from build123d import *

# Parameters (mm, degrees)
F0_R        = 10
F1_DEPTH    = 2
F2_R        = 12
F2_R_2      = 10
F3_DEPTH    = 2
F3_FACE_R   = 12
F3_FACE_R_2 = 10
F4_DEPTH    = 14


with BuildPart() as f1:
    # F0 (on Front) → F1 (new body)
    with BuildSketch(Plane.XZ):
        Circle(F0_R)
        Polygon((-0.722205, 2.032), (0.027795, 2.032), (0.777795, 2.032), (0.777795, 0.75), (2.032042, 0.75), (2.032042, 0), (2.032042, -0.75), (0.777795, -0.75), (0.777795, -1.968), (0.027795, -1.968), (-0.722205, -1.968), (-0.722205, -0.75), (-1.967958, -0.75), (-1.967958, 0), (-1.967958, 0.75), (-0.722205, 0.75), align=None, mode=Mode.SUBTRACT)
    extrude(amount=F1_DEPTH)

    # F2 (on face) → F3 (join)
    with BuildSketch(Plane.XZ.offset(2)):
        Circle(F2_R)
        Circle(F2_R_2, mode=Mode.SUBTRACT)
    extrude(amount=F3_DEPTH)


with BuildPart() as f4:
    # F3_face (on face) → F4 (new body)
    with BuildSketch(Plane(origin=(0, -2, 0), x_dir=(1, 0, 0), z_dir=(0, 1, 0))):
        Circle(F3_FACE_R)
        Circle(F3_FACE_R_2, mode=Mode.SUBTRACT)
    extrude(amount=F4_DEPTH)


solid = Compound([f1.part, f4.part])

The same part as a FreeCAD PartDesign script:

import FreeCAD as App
import Part
import Sketcher
from FreeCAD import Vector
Q = App.Units.Quantity


def add_polygon(sketch, points):
    """Adds a closed chain of lines whose ends are joined by coincident constraints."""
    first, n = sketch.GeometryCount, len(points)
    for a, b in zip(points, points[1:] + points[:1]):
        sketch.addGeometry(Part.LineSegment(App.Vector(*a, 0), App.Vector(*b, 0)), False)
    for i in range(n):
        sketch.addConstraint(Sketcher.Constraint("Coincident", first + i, 2, first + (i + 1) % n, 1))

doc = App.newDocument("Part")
body = doc.addObject("PartDesign::Body", "Body")
body.AllowCompound = True

sketch1 = body.newObject("Sketcher::SketchObject", "Sketch")
sketch1.AttachmentSupport = (doc.getObject("XZ_Plane"), [""])
sketch1.MapMode = "FlatFace"
sketch1.addGeometry(Part.Circle(Vector(0, 0, 0), Vector(0, 0, 1), 10), False)
add_polygon(sketch1, [(-0.7, 0.8), (-0.7, 2), (0.8, 2), (0.8, 0.8), (2, 0.8), (2, -0.8), (0.8, -0.8), (0.8, -2), (-0.7, -2), (-0.7, -0.8), (-2, -0.8), (-2, 0.8)])
sketch1.addConstraint([
    Sketcher.Constraint("Vertical", 1),
    Sketcher.Constraint("Horizontal", 2),
    Sketcher.Constraint("Vertical", 3),
    Sketcher.Constraint("Horizontal", 4),
    Sketcher.Constraint("Vertical", 5),
    Sketcher.Constraint("Horizontal", 6),
    Sketcher.Constraint("Vertical", 7),
    Sketcher.Constraint("Horizontal", 8),
    Sketcher.Constraint("Vertical", 9),
    Sketcher.Constraint("Horizontal", 10),
    Sketcher.Constraint("Vertical", 11),
    Sketcher.Constraint("Horizontal", 12),
    Sketcher.Constraint("Coincident", 0, 3, -1, 1),
    Sketcher.Constraint("Symmetric", 3, 2, 6, 2, -1),
    Sketcher.Constraint("Symmetric", 9, 2, 12, 2, -1),
    Sketcher.Constraint("Horizontal", 6, 2, 9, 2),
    Sketcher.Constraint("Equal", 8, 5),
    Sketcher.Constraint("Diameter", 0, Q("20 mm")),
    Sketcher.Constraint("DistanceX", 2, 1, 2, 2, Q("1.5 mm")),
    Sketcher.Constraint("DistanceY", 1, 1, 1, 2, Q("1.282 mm")),
    Sketcher.Constraint("DistanceY", 7, 2, 7, 1, Q("1.218 mm")),
    Sketcher.Constraint("DistanceX", 4, 1, 4, 2, Q("1.254247 mm")),
    Sketcher.Constraint("DistanceX", 10, 2, 10, 1, Q("1.245753 mm")),
    Sketcher.Constraint("DistanceX", 10, 2, -1, 1, Q("1.967958 mm")),
])
pad1 = body.newObject("PartDesign::Pad", "Pad")
pad1.Profile = sketch1
pad1.Length = 2

sketch2 = body.newObject("Sketcher::SketchObject", "Sketch001")
sketch2.AttachmentSupport = (doc.getObject("XZ_Plane"), [""])
sketch2.MapMode = "FlatFace"
sketch2.AttachmentOffset = App.Placement(Vector(0, 0, 2), App.Rotation())
sketch2.addGeometry([
    Part.Circle(Vector(0, 0, 0), Vector(0, 0, 1), 12),
    Part.Circle(Vector(0, 0, 0), Vector(0, 0, 1), 10),
], False)
sketch2.addConstraint([
    Sketcher.Constraint("Coincident", 0, 3, -1, 1),
    Sketcher.Constraint("Coincident", 1, 3, -1, 1),
    Sketcher.Constraint("Diameter", 0, Q("24 mm")),
    Sketcher.Constraint("Diameter", 1, Q("20 mm")),
])
pad2 = body.newObject("PartDesign::Pad", "Pad001")
pad2.Profile = sketch2
pad2.Length = 2
body2 = doc.addObject("PartDesign::Body", "Body001")

sketch3 = body2.newObject("Sketcher::SketchObject", "Sketch002")
sketch3.AttachmentSupport = (doc.getObject("XZ_Plane001"), [""])
sketch3.MapMode = "FlatFace"
sketch3.AttachmentOffset = App.Placement(Vector(0, 0, 2), App.Rotation())
sketch3.addGeometry([
    Part.Circle(Vector(0, 0, 0), Vector(0, 0, 1), 12),
    Part.Circle(Vector(0, 0, 0), Vector(0, 0, 1), 10),
], False)
sketch3.addConstraint([
    Sketcher.Constraint("Coincident", 0, 3, -1, 1),
    Sketcher.Constraint("Coincident", 1, 3, -1, 1),
    Sketcher.Constraint("Diameter", 0, Q("24 mm")),
    Sketcher.Constraint("Diameter", 1, Q("20 mm")),
])
pad3 = body2.newObject("PartDesign::Pad", "Pad002")
pad3.Profile = sketch3
pad3.Length = 14
pad3.Reversed = True

doc.recompute()
